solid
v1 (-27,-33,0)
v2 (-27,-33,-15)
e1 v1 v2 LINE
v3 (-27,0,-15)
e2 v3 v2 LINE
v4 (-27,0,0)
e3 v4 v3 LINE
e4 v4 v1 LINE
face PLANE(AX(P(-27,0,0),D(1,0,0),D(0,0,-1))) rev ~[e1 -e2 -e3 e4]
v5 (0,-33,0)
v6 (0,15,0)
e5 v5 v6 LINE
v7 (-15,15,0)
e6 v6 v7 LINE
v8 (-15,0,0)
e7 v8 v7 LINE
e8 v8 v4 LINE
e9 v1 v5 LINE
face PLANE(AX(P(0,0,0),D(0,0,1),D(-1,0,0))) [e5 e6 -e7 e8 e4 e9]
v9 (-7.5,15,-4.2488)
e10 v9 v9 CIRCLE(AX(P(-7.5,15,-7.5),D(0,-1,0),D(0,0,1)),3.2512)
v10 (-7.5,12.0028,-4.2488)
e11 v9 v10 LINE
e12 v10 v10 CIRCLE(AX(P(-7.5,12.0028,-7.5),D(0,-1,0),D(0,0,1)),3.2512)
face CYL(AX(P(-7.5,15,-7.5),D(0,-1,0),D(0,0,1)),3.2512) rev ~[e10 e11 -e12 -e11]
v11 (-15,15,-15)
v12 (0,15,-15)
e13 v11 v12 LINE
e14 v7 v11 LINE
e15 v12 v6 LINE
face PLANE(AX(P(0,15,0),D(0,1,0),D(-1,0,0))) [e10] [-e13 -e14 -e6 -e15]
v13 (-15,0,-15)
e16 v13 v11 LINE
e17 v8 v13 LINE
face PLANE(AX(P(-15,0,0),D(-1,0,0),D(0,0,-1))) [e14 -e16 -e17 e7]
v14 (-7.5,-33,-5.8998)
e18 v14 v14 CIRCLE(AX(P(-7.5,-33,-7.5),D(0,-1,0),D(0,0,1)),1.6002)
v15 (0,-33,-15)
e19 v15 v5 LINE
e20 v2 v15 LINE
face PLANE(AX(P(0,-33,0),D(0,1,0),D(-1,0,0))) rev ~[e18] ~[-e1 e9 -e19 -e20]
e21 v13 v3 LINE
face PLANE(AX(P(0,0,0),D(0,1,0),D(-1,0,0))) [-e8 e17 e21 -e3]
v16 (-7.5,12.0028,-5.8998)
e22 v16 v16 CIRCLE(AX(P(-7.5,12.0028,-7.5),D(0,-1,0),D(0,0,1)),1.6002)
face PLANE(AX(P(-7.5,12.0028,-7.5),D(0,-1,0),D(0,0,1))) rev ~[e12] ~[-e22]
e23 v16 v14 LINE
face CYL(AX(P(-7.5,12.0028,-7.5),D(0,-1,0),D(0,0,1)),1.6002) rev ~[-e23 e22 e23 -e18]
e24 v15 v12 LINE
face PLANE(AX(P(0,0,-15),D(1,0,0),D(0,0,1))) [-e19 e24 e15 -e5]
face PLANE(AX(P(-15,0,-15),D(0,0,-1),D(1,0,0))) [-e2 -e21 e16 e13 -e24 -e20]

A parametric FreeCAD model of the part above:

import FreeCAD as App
import Part
import Sketcher
Q = App.Units.Quantity


def add_polygon(sketch, points):
    """Adds a closed chain of lines whose ends are joined by coincident constraints."""
    first, n = sketch.GeometryCount, len(points)
    for a, b in zip(points, points[1:] + points[:1]):
        sketch.addGeometry(Part.LineSegment(App.Vector(*a, 0), App.Vector(*b, 0)), False)
    for i in range(n):
        sketch.addConstraint(Sketcher.Constraint("Coincident", first + i, 2, first + (i + 1) % n, 1))

doc = App.newDocument("Part")
body = doc.addObject("PartDesign::Body", "Body")

# Sketch on XZ plane
sketch1 = body.newObject("Sketcher::SketchObject", "Sketch")
sketch1.AttachmentSupport = (doc.getObject("XZ_Plane"), [""])
sketch1.MapMode = "FlatFace"
add_polygon(sketch1, [(0, 0), (0, -15), (-27, -15), (-27, 0)])  # lines 0-3
sketch1.addConstraint([
    Sketcher.Constraint("Vertical", 0),
    Sketcher.Constraint("Horizontal", 1),
    Sketcher.Constraint("Vertical", 2),
    Sketcher.Constraint("Horizontal", 3),
    Sketcher.Constraint("Coincident", 3, 2, -1, 1),
    Sketcher.Constraint("DistanceY", 0, 2, 0, 1, Q("15 mm")),
    Sketcher.Constraint("DistanceX", 1, 2, 1, 1, Q("27 mm")),
])
pad1 = body.newObject("PartDesign::Pad", "Pad")
pad1.Profile = sketch1
pad1.Length = 33

# Sketch on XZ plane
sketch2 = body.newObject("Sketcher::SketchObject", "Sketch001")
sketch2.AttachmentSupport = (doc.getObject("XZ_Plane"), [""])
sketch2.MapMode = "FlatFace"
add_polygon(sketch2, [(-15, 0), (0, 0), (0, -15), (-15, -15)])  # lines 0-3
sketch2.addConstraint([
    Sketcher.Constraint("Horizontal", 0),
    Sketcher.Constraint("Vertical", 1),
    Sketcher.Constraint("Horizontal", 2),
    Sketcher.Constraint("Vertical", 3),
    Sketcher.Constraint("Coincident", 0, 2, -1, 1),
    Sketcher.Constraint("Equal", 2, 1),
    Sketcher.Constraint("DistanceX", 0, 1, 0, 2, Q("15 mm")),
])
pad2 = body.newObject("PartDesign::Pad", "Pad001")
pad2.Profile = sketch2
pad2.Length = 15
pad2.Reversed = True

# Sketch on XZ plane
sketch3 = body.newObject("Sketcher::SketchObject", "Sketch002")
sketch3.AttachmentSupport = (doc.getObject("XZ_Plane"), [""])
sketch3.MapMode = "FlatFace"
sketch3.AttachmentOffset = App.Placement(App.Vector(0, 0, -15), App.Rotation())
sketch3.addGeometry(Part.Circle(App.Vector(-7.5, -7.5, 0), App.Vector(0, 0, 1), 1.6002), False)
sketch3.addConstraint([
    Sketcher.Constraint("Diameter", 0, Q("3.2004 mm")),
    Sketcher.Constraint("DistanceX", 0, 3, -1, 1, Q("7.5 mm")),
    Sketcher.Constraint("DistanceY", 0, 3, -1, 1, Q("7.5 mm")),
])
doc.recompute()
hole = body.newObject("PartDesign::Hole", "Hole")
hole.Profile = sketch3
hole.ThreadType = "None"
hole.Diameter = 3.2004
hole.DepthType = "ThroughAll"
hole.HoleCutType = "Counterbore"
hole.HoleCutDiameter = 6.5024
hole.HoleCutDepth = 2.9972
hole.Reversed = True

doc.recompute()
